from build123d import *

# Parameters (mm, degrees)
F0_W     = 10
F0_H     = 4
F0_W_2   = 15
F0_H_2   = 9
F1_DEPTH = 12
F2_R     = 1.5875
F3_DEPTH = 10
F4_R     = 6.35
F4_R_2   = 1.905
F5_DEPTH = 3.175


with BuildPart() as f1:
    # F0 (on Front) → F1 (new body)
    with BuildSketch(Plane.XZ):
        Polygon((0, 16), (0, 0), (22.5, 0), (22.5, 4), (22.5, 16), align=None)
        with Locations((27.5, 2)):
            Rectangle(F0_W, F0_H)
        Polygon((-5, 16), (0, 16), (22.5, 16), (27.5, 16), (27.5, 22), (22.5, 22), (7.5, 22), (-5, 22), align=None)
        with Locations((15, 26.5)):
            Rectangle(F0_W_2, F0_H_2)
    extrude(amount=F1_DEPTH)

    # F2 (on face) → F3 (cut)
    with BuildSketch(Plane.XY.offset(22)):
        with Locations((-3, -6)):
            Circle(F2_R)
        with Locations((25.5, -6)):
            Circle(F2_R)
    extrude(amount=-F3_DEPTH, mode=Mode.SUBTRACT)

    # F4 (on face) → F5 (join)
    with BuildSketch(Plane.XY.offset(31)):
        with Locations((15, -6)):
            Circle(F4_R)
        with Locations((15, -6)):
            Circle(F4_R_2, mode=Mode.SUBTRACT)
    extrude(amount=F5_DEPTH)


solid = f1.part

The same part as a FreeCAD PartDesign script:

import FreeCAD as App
import Part
import Sketcher


def add_polygon(sketch, points):
    """Adds a closed chain of lines whose ends are joined by coincident constraints."""
    first, n = sketch.GeometryCount, len(points)
    for a, b in zip(points, points[1:] + points[:1]):
        sketch.addGeometry(Part.LineSegment(App.Vector(*a, 0), App.Vector(*b, 0)), False)
    for i in range(n):
        sketch.addConstraint(Sketcher.Constraint("Coincident", first + i, 2, first + (i + 1) % n, 1))

doc = App.newDocument("Part")
body = doc.addObject("PartDesign::Body", "Body")

# Sketch on XZ plane
sketch1 = body.newObject("Sketcher::SketchObject", "Sketch")
sketch1.AttachmentSupport = (doc.getObject("XZ_Plane"), [""])
sketch1.MapMode = "FlatFace"
add_polygon(sketch1, [(0, 16), (0, 0), (32.5, 0), (32.5, 4), (22.5, 4), (22.5, 16), (27.5, 16), (27.5, 22), (22.5, 22), (22.5, 31), (7.5, 31), (7.5, 22), (-5, 22), (-5, 16)])  # lines 0-13
sketch1.addConstraint([
    Sketcher.Constraint("Vertical", 0),
    Sketcher.Constraint("Horizontal", 1),
    Sketcher.Constraint("Vertical", 2),
    Sketcher.Constraint("Horizontal", 3),
    Sketcher.Constraint("Vertical", 4),
    Sketcher.Constraint("Horizontal", 5),
    Sketcher.Constraint("Vertical", 6),
    Sketcher.Constraint("Horizontal", 7),
    Sketcher.Constraint("Vertical", 8),
    Sketcher.Constraint("Horizontal", 9),
    Sketcher.Constraint("Vertical", 10),
    Sketcher.Constraint("Horizontal", 11),
    Sketcher.Constraint("Vertical", 12),
    Sketcher.Constraint("Horizontal", 13),
    Sketcher.Constraint("Coincident", 0, 2, -1, 1),
    Sketcher.Constraint("Horizontal", 7, 2, 10, 2),
    Sketcher.Constraint("Horizontal", 5, 2, 12, 2),
    Sketcher.Constraint("Vertical", 4, 2, 7, 2),
    Sketcher.Constraint("Equal", 7, 13),
    Sketcher.Constraint("DistanceX", 3, 2, 3, 1, 10.0),
    Sketcher.Constraint("DistanceX", 5, 1, 5, 2, 5.0),
    Sketcher.Constraint("DistanceX", 9, 2, 9, 1, 15.0),
    Sketcher.Constraint("DistanceY", 0, 2, 0, 1, 16.0),
    Sketcher.Constraint("DistanceY", 2, 1, 2, 2, 4.0),
    Sketcher.Constraint("DistanceY", 6, 1, 6, 2, 6.0),
    Sketcher.Constraint("DistanceY", 8, 1, 8, 2, 9.0),
    Sketcher.Constraint("DistanceX", 1, 1, 1, 2, 32.5),
])
pad1 = body.newObject("PartDesign::Pad", "Pad")
pad1.Profile = sketch1
pad1.Length = 12

# Sketch on XY plane
sketch2 = body.newObject("Sketcher::SketchObject", "Sketch001")
sketch2.AttachmentSupport = (doc.getObject("XY_Plane"), [""])
sketch2.MapMode = "FlatFace"
sketch2.AttachmentOffset = App.Placement(App.Vector(0, 0, 22), App.Rotation())
sketch2.addGeometry([
    Part.Circle(App.Vector(-3, -6, 0), App.Vector(0, 0, 1), 1.6),
    Part.Circle(App.Vector(25.5, -6, 0), App.Vector(0, 0, 1), 1.6),
], False)
sketch2.addConstraint([
    Sketcher.Constraint("Equal", 0, 1),
    Sketcher.Constraint("Horizontal", 0, 3, 1, 3),
    Sketcher.Constraint("Diameter", 0, 3.175),
    Sketcher.Constraint("DistanceX", 0, 3, -1, 1, 3.0),
    Sketcher.Constraint("DistanceY", 0, 3, -1, 1, 6.0),
    Sketcher.Constraint("DistanceX", -1, 1, 1, 3, 25.5),
])
pocket1 = body.newObject("PartDesign::Pocket", "Pocket")
pocket1.Profile = sketch2
pocket1.Length = 10

# Sketch on XY plane
sketch3 = body.newObject("Sketcher::SketchObject", "Sketch002")
sketch3.AttachmentSupport = (doc.getObject("XY_Plane"), [""])
sketch3.MapMode = "FlatFace"
sketch3.AttachmentOffset = App.Placement(App.Vector(0, 0, 31), App.Rotation())
sketch3.addGeometry([
    Part.Circle(App.Vector(15, -6, 0), App.Vector(0, 0, 1), 6.3),
    Part.Circle(App.Vector(15, -6, 0), App.Vector(0, 0, 1), 1.9),
], False)
sketch3.addConstraint([
    Sketcher.Constraint("Coincident", 1, 3, 0, 3),
    Sketcher.Constraint("Diameter", 0, 12.7),
    Sketcher.Constraint("Diameter", 1, 3.81),
    Sketcher.Constraint("DistanceX", -1, 1, 0, 3, 15.0),
    Sketcher.Constraint("DistanceY", 0, 3, -1, 1, 6.0),
])
pad2 = body.newObject("PartDesign::Pad", "Pad001")
pad2.Profile = sketch3
pad2.Length = 3.175

doc.recompute()
